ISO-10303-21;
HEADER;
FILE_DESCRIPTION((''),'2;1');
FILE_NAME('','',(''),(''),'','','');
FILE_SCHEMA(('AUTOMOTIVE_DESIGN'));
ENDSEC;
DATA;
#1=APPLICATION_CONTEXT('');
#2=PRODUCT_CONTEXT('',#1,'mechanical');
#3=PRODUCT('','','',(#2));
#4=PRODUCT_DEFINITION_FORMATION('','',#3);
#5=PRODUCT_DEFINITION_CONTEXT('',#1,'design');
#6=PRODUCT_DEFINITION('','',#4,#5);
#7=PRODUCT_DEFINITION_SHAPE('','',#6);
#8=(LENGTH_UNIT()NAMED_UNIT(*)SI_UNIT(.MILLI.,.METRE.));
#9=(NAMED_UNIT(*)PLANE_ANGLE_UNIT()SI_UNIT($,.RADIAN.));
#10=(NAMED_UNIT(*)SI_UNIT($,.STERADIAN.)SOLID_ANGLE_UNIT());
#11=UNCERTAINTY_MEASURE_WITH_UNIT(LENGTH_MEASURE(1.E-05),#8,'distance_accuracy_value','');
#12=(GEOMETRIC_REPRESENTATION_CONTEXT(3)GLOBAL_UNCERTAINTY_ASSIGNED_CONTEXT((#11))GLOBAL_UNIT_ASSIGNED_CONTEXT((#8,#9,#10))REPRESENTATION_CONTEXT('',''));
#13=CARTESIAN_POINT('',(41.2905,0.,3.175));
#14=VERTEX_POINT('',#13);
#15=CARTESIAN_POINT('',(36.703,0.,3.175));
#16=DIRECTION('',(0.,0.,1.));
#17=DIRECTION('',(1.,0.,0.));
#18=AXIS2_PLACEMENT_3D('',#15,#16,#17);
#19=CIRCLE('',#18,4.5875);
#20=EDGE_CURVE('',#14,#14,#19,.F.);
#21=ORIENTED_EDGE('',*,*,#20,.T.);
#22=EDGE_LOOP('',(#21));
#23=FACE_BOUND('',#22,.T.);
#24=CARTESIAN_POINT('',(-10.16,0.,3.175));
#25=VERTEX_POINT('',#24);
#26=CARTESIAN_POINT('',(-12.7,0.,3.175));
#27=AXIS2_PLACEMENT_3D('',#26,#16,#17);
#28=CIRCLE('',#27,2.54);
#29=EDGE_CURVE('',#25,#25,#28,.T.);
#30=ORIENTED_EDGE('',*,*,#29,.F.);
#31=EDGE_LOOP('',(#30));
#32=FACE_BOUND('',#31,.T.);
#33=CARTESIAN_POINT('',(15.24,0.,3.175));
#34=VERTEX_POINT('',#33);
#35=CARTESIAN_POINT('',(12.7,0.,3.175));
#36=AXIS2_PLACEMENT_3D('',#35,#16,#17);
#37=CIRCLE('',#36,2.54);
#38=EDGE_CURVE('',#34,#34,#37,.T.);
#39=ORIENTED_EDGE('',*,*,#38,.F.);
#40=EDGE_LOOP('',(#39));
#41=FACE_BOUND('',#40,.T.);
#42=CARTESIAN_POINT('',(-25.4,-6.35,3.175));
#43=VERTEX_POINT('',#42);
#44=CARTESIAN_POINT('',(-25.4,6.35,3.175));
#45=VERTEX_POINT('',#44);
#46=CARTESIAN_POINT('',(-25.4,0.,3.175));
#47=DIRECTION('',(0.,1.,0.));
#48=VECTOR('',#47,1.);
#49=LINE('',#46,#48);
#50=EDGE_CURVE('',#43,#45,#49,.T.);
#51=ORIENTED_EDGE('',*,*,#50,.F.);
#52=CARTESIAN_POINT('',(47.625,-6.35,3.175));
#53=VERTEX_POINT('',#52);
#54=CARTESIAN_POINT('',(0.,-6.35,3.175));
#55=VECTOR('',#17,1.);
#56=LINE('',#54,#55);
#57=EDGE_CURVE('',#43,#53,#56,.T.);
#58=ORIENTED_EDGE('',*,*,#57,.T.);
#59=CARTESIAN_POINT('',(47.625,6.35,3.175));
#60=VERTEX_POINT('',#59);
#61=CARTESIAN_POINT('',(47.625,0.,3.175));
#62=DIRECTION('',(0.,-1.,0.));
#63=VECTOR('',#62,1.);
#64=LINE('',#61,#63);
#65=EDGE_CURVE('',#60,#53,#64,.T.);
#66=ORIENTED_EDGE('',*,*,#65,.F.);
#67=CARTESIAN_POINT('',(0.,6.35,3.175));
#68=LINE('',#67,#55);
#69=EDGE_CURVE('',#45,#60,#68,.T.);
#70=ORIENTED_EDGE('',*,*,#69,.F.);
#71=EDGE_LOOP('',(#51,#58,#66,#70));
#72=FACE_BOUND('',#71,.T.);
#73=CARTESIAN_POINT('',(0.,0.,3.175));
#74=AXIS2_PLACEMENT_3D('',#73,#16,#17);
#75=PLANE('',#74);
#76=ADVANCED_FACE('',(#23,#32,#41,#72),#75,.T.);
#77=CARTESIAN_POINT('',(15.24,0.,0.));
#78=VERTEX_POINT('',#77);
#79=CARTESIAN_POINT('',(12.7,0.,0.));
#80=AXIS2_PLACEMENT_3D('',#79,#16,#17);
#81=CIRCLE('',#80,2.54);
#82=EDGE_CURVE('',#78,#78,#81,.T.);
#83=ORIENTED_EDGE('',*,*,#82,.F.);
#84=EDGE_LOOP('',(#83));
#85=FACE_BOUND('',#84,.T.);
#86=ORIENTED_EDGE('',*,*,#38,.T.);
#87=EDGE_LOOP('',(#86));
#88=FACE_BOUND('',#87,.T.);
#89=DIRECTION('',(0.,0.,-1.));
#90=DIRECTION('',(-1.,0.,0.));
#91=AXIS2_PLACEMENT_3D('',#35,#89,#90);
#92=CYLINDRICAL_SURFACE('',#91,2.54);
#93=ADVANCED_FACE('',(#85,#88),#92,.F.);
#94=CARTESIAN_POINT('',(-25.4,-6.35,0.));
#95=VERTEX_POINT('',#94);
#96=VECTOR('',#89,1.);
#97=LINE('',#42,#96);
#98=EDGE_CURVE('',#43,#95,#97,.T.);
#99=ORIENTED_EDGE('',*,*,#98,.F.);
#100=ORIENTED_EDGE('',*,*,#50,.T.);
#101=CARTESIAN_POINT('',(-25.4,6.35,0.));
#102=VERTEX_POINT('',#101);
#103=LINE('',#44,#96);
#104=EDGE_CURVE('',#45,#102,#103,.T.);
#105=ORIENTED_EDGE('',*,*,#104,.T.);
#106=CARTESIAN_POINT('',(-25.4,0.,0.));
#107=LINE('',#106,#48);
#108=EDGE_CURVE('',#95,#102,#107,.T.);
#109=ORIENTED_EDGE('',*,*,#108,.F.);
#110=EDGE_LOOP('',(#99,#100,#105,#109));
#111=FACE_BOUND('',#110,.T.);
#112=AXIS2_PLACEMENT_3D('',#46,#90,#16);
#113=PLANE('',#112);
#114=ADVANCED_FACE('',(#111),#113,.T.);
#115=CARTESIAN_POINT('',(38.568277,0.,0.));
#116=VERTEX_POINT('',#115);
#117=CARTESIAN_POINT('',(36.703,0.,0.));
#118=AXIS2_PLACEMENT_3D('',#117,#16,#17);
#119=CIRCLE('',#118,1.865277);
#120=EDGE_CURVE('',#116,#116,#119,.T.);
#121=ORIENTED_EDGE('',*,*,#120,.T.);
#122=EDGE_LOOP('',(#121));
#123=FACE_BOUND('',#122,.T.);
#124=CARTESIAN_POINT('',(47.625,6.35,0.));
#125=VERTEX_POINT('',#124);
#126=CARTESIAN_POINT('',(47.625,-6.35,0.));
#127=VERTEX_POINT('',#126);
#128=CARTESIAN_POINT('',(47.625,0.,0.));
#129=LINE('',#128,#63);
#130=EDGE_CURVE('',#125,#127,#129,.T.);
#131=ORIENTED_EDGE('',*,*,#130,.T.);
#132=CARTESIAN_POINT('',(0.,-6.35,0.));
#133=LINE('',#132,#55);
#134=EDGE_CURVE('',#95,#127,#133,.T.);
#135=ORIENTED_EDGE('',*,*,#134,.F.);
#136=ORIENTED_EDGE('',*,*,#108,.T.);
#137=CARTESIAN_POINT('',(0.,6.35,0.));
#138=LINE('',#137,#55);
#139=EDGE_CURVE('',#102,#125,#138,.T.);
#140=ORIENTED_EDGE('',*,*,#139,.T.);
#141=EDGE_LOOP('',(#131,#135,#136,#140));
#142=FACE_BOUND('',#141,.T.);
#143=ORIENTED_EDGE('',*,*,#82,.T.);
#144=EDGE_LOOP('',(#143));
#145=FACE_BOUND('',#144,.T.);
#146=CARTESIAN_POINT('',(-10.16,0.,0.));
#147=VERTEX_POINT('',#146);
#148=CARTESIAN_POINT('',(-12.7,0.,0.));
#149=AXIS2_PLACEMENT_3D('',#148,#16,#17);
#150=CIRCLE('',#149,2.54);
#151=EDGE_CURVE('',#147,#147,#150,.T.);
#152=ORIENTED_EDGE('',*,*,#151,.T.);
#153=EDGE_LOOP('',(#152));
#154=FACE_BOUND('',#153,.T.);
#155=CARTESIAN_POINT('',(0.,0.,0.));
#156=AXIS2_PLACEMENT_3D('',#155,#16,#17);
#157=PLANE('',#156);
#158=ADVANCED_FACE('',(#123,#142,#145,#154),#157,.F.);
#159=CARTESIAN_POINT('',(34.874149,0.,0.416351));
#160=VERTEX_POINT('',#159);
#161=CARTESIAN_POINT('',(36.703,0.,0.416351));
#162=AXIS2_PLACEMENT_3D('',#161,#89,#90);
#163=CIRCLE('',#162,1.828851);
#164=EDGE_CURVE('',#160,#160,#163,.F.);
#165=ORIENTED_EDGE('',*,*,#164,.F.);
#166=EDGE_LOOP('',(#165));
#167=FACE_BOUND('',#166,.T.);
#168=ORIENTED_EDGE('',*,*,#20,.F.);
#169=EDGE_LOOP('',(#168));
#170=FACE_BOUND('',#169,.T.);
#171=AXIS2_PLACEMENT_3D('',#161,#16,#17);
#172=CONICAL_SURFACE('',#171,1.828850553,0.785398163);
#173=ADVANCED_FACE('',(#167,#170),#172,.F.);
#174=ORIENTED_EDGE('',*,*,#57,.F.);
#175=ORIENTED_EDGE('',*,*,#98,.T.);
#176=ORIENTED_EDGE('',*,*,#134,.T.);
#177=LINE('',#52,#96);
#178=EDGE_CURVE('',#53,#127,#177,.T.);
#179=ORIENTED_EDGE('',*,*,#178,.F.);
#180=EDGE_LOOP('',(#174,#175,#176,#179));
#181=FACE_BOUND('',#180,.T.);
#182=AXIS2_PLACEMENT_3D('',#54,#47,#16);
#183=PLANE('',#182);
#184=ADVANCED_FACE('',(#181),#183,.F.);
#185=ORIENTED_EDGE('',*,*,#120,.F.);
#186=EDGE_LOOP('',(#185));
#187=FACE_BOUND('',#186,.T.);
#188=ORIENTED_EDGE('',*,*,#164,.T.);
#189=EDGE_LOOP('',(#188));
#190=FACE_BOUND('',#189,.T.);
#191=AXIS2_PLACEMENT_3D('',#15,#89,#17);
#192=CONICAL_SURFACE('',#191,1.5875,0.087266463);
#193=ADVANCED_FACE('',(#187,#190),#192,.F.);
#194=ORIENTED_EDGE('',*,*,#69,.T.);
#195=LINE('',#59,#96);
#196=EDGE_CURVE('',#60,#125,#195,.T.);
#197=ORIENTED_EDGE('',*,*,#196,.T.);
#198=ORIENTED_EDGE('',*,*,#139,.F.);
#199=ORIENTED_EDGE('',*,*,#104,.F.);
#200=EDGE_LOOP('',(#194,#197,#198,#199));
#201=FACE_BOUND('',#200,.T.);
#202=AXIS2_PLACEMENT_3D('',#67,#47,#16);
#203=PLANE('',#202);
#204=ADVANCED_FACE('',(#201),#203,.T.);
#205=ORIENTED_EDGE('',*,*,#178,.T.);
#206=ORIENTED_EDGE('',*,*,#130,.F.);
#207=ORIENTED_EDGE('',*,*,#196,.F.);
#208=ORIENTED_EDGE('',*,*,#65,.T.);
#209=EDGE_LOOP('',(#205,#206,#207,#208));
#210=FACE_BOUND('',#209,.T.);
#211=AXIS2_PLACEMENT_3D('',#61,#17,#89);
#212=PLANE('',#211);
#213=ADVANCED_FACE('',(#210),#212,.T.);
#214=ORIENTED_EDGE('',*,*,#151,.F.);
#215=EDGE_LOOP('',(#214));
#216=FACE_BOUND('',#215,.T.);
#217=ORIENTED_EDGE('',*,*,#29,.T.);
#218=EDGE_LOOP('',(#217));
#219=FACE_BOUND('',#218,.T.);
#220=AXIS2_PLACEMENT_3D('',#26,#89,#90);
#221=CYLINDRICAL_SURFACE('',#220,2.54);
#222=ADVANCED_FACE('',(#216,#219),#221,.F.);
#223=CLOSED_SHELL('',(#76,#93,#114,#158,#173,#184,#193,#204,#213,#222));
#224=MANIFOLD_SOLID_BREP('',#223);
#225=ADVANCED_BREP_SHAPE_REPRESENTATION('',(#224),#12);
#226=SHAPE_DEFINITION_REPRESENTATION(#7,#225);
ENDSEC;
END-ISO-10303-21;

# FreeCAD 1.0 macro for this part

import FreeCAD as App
import Part
import Sketcher
Q = App.Units.Quantity


def edges_at(feature, points):
    """Names of the edges that pass closest to the given points."""
    edges = feature.Shape.Edges
    near = lambda p: min(range(len(edges)), key=lambda i: edges[i].distToShape(Part.Vertex(*p))[0])
    return sorted({f"Edge{near(p) + 1}" for p in points})


def faces_at(feature, points):
    """Names of the faces that lie closest to the given points."""
    faces = feature.Shape.Faces
    near = lambda p: min(range(len(faces)), key=lambda i: faces[i].distToShape(Part.Vertex(*p))[0])
    return sorted({f"Face{near(p) + 1}" for p in points})

doc = App.newDocument("Part")
body = doc.addObject("PartDesign::Body", "Body")

sketch1 = body.newObject("Sketcher::SketchObject", "Sketch")
sketch1.AttachmentSupport = (doc.getObject("XY_Plane"), [""])
sketch1.MapMode = "FlatFace"
sketch1.addGeometry([
    Part.LineSegment(App.Vector(47.6, -6.3, 0), App.Vector(47.6, 6.3, 0)),
    Part.LineSegment(App.Vector(47.6, 6.3, 0), App.Vector(-25.4, 6.3, 0)),
    Part.LineSegment(App.Vector(-25.4, 6.3, 0), App.Vector(-25.4, -6.3, 0)),
    Part.LineSegment(App.Vector(-25.4, -6.3, 0), App.Vector(47.6, -6.3, 0)),
    Part.Circle(App.Vector(12.7, 0, 0), App.Vector(0, 0, 1), 2.5),
    Part.Circle(App.Vector(-12.7, 0, 0), App.Vector(0, 0, 1), 2.5),
], False)
sketch1.addConstraint([
    Sketcher.Constraint("Coincident", 0, 2, 1, 1),
    Sketcher.Constraint("Coincident", 1, 2, 2, 1),
    Sketcher.Constraint("Coincident", 2, 2, 3, 1),
    Sketcher.Constraint("Coincident", 3, 2, 0, 1),
    Sketcher.Constraint("Vertical", 0),
    Sketcher.Constraint("Horizontal", 1),
    Sketcher.Constraint("Vertical", 2),
    Sketcher.Constraint("Horizontal", 3),
    Sketcher.Constraint("Equal", 4, 5),
    Sketcher.Constraint("Symmetric", 4, 3, 5, 3, -1, 1),
    Sketcher.Constraint("PointOnObject", 4, 3, -1),
    Sketcher.Constraint("Diameter", 4, Q("0.2 in")),
    Sketcher.Constraint("DistanceY", 0, 1, 0, 2, Q("0.5 in")),
    Sketcher.Constraint("DistanceX", 1, 2, -1, 1, Q("1 in")),
    Sketcher.Constraint("DistanceX", 5, 3, 4, 3, Q("1 in")),
    Sketcher.Constraint("DistanceX", 1, 2, 1, 1, Q("2.875 in")),
    Sketcher.Constraint("DistanceY", -1, 1, 0, 2, Q("0.25 in")),
])
pad1 = body.newObject("PartDesign::Pad", "Pad")
pad1.Profile = sketch1
pad1.Length = Q("0.125 in")
body2 = doc.addObject("PartDesign::Body", "Body001")

sketch2 = body2.newObject("Sketcher::SketchObject", "Sketch001")
sketch2.AttachmentSupport = (doc.getObject("XY_Plane001"), [""])
sketch2.MapMode = "FlatFace"
sketch2.AttachmentOffset = App.Placement(App.Vector(0, 0, 0.125 * 25.4), App.Rotation())
sketch2.addGeometry(Part.Circle(App.Vector(36.7, 0, 0), App.Vector(0, 0, 1), 1.6), False)
sketch2.addConstraint([
    Sketcher.Constraint("PointOnObject", 0, 3, -1),
    Sketcher.Constraint("Diameter", 0, Q("0.125 in")),
    Sketcher.Constraint("DistanceX", -1, 1, 0, 3, Q("1.445 in")),
])
pad2 = body2.newObject("PartDesign::Pad", "Pad001")
pad2.Profile = sketch2
pad2.Length = 49.151259
pad2.Reversed = True
doc.recompute()

datumplane = body2.newObject("PartDesign::Plane", "DatumPlane")
datumplane.AttachmentSupport = (doc.getObject("XY_Plane001"), [""])
datumplane.MapMode = "FlatFace"
datumplane.AttachmentOffset = App.Placement(App.Vector(0, 0, 0.125 * 25.4), App.Rotation())
draft = body2.newObject("PartDesign::Draft", "Draft")
draft.Base = (pad2, faces_at(pad2, [(35.115, 0, -21.401)]))
draft.NeutralPlane = (datumplane, [""])
draft.Angle = 5
draft.Reversed = False
doc.recompute()

boolean = body.newObject("PartDesign::Boolean", "Boolean")
boolean.Type = "Cut"
boolean.addObjects([body2])
doc.recompute()

chamfer = body.newObject("PartDesign::Chamfer", "Chamfer")
chamfer.Base = (boolean, edges_at(boolean, [(35.115, 0, 3.175)]))
chamfer.ChamferType = "Two distances"
chamfer.Size = 3
chamfer.Size2 = 2.769187

doc.recompute()
